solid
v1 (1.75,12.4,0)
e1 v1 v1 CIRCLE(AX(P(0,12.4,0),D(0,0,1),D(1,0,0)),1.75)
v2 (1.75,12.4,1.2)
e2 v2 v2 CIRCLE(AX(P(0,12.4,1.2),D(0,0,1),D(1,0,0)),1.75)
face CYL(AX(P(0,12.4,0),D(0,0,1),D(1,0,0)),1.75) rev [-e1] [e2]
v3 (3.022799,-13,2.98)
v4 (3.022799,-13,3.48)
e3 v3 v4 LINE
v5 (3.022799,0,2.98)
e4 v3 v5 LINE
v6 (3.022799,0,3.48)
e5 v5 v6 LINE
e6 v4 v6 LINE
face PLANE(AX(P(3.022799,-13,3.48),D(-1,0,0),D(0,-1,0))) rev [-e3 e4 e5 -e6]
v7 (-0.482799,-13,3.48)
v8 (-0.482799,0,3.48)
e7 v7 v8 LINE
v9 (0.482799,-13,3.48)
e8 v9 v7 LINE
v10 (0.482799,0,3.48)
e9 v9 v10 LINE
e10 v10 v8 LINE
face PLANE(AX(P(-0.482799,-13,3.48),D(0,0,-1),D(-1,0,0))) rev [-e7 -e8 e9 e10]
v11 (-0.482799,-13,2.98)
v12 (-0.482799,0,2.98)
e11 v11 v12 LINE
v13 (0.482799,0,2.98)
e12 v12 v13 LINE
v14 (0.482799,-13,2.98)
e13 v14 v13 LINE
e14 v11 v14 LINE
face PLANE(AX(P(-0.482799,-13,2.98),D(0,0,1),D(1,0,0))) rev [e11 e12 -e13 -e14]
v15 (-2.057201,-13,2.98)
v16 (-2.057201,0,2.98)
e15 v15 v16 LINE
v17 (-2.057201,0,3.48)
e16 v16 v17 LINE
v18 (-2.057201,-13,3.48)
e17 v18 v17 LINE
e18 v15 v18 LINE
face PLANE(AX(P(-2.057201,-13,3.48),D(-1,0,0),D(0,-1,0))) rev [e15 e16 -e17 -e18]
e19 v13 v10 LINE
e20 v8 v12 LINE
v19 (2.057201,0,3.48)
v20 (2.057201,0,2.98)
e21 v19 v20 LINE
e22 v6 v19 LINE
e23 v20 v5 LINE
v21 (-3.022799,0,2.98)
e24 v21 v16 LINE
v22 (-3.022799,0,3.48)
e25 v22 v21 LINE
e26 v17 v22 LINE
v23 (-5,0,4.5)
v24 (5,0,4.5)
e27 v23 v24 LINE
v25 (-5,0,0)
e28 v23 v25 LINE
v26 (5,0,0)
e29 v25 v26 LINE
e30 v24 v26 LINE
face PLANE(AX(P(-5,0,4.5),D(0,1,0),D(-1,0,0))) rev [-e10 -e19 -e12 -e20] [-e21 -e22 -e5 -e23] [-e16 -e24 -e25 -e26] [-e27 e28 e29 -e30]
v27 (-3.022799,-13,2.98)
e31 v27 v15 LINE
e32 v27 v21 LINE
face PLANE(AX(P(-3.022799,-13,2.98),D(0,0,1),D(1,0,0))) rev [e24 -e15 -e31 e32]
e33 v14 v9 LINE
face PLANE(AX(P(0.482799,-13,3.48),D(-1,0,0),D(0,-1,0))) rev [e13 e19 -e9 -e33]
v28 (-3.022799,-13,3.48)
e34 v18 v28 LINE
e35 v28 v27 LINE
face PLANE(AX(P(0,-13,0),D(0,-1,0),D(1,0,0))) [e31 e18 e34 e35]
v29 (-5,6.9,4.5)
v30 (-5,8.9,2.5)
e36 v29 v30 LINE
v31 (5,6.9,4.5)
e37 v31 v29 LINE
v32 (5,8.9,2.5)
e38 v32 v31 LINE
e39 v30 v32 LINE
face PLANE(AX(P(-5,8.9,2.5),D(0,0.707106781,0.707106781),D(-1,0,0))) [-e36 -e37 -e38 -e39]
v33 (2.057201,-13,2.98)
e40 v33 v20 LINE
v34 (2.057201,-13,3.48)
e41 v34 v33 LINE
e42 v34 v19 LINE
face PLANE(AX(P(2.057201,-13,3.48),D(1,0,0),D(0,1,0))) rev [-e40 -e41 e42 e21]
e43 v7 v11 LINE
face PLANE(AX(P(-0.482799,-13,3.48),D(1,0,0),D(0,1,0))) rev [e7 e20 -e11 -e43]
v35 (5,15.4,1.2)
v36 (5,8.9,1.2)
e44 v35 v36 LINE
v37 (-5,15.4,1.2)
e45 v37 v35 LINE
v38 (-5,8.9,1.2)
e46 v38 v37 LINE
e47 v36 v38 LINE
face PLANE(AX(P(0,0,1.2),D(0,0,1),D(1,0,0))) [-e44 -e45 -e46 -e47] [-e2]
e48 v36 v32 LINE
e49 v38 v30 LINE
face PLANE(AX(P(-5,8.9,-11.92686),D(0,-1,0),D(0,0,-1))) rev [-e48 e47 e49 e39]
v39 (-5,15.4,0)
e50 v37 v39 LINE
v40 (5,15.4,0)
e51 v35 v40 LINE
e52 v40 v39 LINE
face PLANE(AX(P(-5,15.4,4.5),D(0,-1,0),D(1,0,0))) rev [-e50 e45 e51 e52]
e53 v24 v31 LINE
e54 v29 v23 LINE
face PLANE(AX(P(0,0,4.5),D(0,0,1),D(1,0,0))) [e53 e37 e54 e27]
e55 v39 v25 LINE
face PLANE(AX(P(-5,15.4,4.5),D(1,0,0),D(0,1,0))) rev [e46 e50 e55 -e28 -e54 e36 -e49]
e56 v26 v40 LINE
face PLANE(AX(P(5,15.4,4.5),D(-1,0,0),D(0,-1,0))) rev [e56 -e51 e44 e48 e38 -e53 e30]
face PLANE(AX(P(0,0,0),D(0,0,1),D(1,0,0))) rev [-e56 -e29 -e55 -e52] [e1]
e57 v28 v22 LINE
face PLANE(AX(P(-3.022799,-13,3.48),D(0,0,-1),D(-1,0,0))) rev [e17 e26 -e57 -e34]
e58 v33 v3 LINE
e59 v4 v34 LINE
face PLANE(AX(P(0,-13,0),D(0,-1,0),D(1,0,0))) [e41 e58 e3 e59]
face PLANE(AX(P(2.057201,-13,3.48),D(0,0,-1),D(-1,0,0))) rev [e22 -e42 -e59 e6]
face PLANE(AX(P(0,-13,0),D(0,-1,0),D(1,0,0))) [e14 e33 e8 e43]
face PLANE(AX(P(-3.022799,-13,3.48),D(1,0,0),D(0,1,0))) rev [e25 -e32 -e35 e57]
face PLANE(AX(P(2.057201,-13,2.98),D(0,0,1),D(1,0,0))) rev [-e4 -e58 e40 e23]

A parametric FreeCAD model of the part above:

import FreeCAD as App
import Part
import Sketcher


def edges_at(feature, points):
    """Names of the edges that pass closest to the given points."""
    edges = feature.Shape.Edges
    near = lambda p: min(range(len(edges)), key=lambda i: edges[i].distToShape(Part.Vertex(*p))[0])
    return sorted({f"Edge{near(p) + 1}" for p in points})

doc = App.newDocument("Part")
body = doc.addObject("PartDesign::Body", "Body")

sketch1 = doc.addObject("Sketcher::SketchObject", "Sketch")
body.addObject(sketch1)
sketch1.AttachmentSupport = (doc.XY_Plane, [""])
sketch1.MapMode = "FlatFace"
sketch1.addGeometry([
    Part.LineSegment(App.Vector(-5, 15, 0), App.Vector(-5, 0, 0)),
    Part.LineSegment(App.Vector(-5, 0, 0), App.Vector(5, 0, 0)),
    Part.LineSegment(App.Vector(5, 0, 0), App.Vector(5, 15, 0)),
    Part.LineSegment(App.Vector(5, 15, 0), App.Vector(-5, 15, 0)),
], False)
sketch1.addConstraint([
    Sketcher.Constraint("Coincident", 0, 2, 1, 1),
    Sketcher.Constraint("Coincident", 1, 2, 2, 1),
    Sketcher.Constraint("Coincident", 2, 2, 3, 1),
    Sketcher.Constraint("Coincident", 3, 2, 0, 1),
    Sketcher.Constraint("Vertical", 0),
    Sketcher.Constraint("Horizontal", 1),
    Sketcher.Constraint("Vertical", 2),
    Sketcher.Constraint("Horizontal", 3),
    Sketcher.Constraint("Symmetric", 0, 2, 1, 2, -1, 1),
    Sketcher.Constraint("DistanceX", 1, 1, 1, 2, 10.0),
    Sketcher.Constraint("DistanceY", 0, 2, 0, 1, 15.4),
])
pad1 = doc.addObject("PartDesign::Pad", "Pad")
body.addObject(pad1)
pad1.Profile = sketch1
pad1.Length = 4.5

sketch2 = doc.addObject("Sketcher::SketchObject", "Sketch001")
body.addObject(sketch2)
sketch2.AttachmentSupport = (doc.XY_Plane, [""])
sketch2.MapMode = "FlatFace"
sketch2.AttachmentOffset = App.Placement(App.Vector(0, 0, 4.5), App.Rotation())
sketch2.addGeometry([
    Part.LineSegment(App.Vector(-5, 15, 0), App.Vector(-5, 9, 0)),
    Part.LineSegment(App.Vector(-5, 9, 0), App.Vector(5, 9, 0)),
    Part.LineSegment(App.Vector(5, 9, 0), App.Vector(5, 15, 0)),
    Part.LineSegment(App.Vector(5, 15, 0), App.Vector(-5, 15, 0)),
], False)
sketch2.addConstraint([
    Sketcher.Constraint("Coincident", 0, 2, 1, 1),
    Sketcher.Constraint("Coincident", 1, 2, 2, 1),
    Sketcher.Constraint("Coincident", 2, 2, 3, 1),
    Sketcher.Constraint("Coincident", 3, 2, 0, 1),
    Sketcher.Constraint("Vertical", 0),
    Sketcher.Constraint("Horizontal", 1),
    Sketcher.Constraint("Vertical", 2),
    Sketcher.Constraint("Horizontal", 3),
    Sketcher.Constraint("DistanceX", 1, 1, 1, 2, 10.0),
    Sketcher.Constraint("DistanceY", 0, 2, 0, 1, 6.5),
    Sketcher.Constraint("DistanceX", 0, 2, -1, 1, 5.0),
    Sketcher.Constraint("DistanceY", -1, 1, 0, 2, 8.9),
])
pocket1 = doc.addObject("PartDesign::Pocket", "Pocket")
body.addObject(pocket1)
pocket1.Profile = sketch2
pocket1.Length = 3.3
doc.recompute()

chamfer = doc.addObject("PartDesign::Chamfer", "Chamfer")
body.addObject(chamfer)
chamfer.Base = (pocket1, edges_at(pocket1, [(0, 8.9, 4.5)]))
chamfer.Size = 2

sketch3 = doc.addObject("Sketcher::SketchObject", "Sketch002")
body.addObject(sketch3)
sketch3.AttachmentSupport = (doc.XY_Plane, [""])
sketch3.MapMode = "FlatFace"
sketch3.AttachmentOffset = App.Placement(App.Vector(0, 0, 1.2), App.Rotation())
sketch3.addGeometry(Part.Circle(App.Vector(0, 12.4, 0), App.Vector(0, 0, 1), 1.8), False)
sketch3.addConstraint([
    Sketcher.Constraint("PointOnObject", 0, 3, -2),
    Sketcher.Constraint("Diameter", 0, 3.5),
    Sketcher.Constraint("DistanceY", -1, 1, 0, 3, 12.4),
])
pocket2 = doc.addObject("PartDesign::Pocket", "Pocket001")
body.addObject(pocket2)
pocket2.Profile = sketch3
pocket2.Type = "ThroughAll"

sketch4 = doc.addObject("Sketcher::SketchObject", "Sketch003")
body.addObject(sketch4)
sketch4.AttachmentSupport = (doc.XZ_Plane, [""])
sketch4.MapMode = "FlatFace"
sketch4.addGeometry([
    Part.LineSegment(App.Vector(2.1, 3.5, 0), App.Vector(2.1, 3, 0)),
    Part.LineSegment(App.Vector(2.1, 3, 0), App.Vector(3, 3, 0)),
    Part.LineSegment(App.Vector(3, 3, 0), App.Vector(3, 3.5, 0)),
    Part.LineSegment(App.Vector(3, 3.5, 0), App.Vector(2.1, 3.5, 0)),
    Part.LineSegment(App.Vector(-0.5, 3.5, 0), App.Vector(-0.5, 3, 0)),
    Part.LineSegment(App.Vector(-0.5, 3, 0), App.Vector(0.5, 3, 0)),
    Part.LineSegment(App.Vector(0.5, 3, 0), App.Vector(0.5, 3.5, 0)),
    Part.LineSegment(App.Vector(0.5, 3.5, 0), App.Vector(-0.5, 3.5, 0)),
    Part.LineSegment(App.Vector(-3, 3.5, 0), App.Vector(-3, 3, 0)),
    Part.LineSegment(App.Vector(-3, 3, 0), App.Vector(-2.1, 3, 0)),
    Part.LineSegment(App.Vector(-2.1, 3, 0), App.Vector(-2.1, 3.5, 0)),
    Part.LineSegment(App.Vector(-2.1, 3.5, 0), App.Vector(-3, 3.5, 0)),
], False)
sketch4.addConstraint([
    Sketcher.Constraint("Coincident", 0, 2, 1, 1),
    Sketcher.Constraint("Coincident", 1, 2, 2, 1),
    Sketcher.Constraint("Coincident", 2, 2, 3, 1),
    Sketcher.Constraint("Coincident", 3, 2, 0, 1),
    Sketcher.Constraint("Coincident", 4, 2, 5, 1),
    Sketcher.Constraint("Coincident", 5, 2, 6, 1),
    Sketcher.Constraint("Coincident", 6, 2, 7, 1),
    Sketcher.Constraint("Coincident", 7, 2, 4, 1),
    Sketcher.Constraint("Coincident", 8, 2, 9, 1),
    Sketcher.Constraint("Coincident", 9, 2, 10, 1),
    Sketcher.Constraint("Coincident", 10, 2, 11, 1),
    Sketcher.Constraint("Coincident", 11, 2, 8, 1),
    Sketcher.Constraint("Vertical", 0),
    Sketcher.Constraint("Horizontal", 1),
    Sketcher.Constraint("Vertical", 2),
    Sketcher.Constraint("Horizontal", 3),
    Sketcher.Constraint("Vertical", 4),
    Sketcher.Constraint("Horizontal", 5),
    Sketcher.Constraint("Vertical", 6),
    Sketcher.Constraint("Horizontal", 7),
    Sketcher.Constraint("Vertical", 8),
    Sketcher.Constraint("Horizontal", 9),
    Sketcher.Constraint("Vertical", 10),
    Sketcher.Constraint("Horizontal", 11),
    Sketcher.Constraint("Symmetric", 1, 2, 8, 2, -2),
    Sketcher.Constraint("Symmetric", 3, 2, 10, 2, -2),
    Sketcher.Constraint("Horizontal", 1, 2, 4, 2),
    Sketcher.Constraint("Horizontal", 3, 2, 6, 2),
    Sketcher.Constraint("Equal", 3, 5),
    Sketcher.Constraint("DistanceY", 0, 2, 0, 1, 0.5),
    Sketcher.Constraint("DistanceY", -1, 1, 0, 2, 2.98),
    Sketcher.Constraint("DistanceX", 4, 2, 0, 2, 2.54),
    Sketcher.Constraint("DistanceX", 8, 2, 4, 2, 2.54),
    Sketcher.Constraint("DistanceX", -1, 1, 0, 2, 2.057201),
])
pad2 = doc.addObject("PartDesign::Pad", "Pad001")
body.addObject(pad2)
pad2.Profile = sketch4
pad2.Length = 13

doc.recompute()
